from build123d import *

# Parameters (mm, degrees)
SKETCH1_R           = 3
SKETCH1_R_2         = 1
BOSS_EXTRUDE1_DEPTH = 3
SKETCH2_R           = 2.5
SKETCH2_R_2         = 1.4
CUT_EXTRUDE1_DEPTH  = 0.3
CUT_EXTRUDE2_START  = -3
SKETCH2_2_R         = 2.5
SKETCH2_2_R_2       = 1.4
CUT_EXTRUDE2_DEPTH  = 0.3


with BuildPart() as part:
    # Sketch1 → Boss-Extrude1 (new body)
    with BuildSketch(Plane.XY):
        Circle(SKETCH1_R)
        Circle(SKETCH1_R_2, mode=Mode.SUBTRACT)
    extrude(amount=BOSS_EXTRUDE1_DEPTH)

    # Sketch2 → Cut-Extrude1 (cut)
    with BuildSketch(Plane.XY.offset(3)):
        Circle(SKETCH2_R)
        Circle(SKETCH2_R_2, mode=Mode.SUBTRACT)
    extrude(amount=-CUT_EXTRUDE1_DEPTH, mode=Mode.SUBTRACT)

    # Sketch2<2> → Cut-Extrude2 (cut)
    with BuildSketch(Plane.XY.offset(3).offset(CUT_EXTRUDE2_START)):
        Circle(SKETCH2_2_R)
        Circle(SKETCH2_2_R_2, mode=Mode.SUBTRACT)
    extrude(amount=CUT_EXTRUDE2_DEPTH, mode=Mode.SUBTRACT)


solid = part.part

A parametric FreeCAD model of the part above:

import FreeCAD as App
import Part
import Sketcher

V = App.Vector
Q = App.Units.Quantity

doc = App.newDocument("Part")
body = doc.addObject("PartDesign::Body", "Body")

sketch1 = doc.addObject("Sketcher::SketchObject", "Sketch")
body.addObject(sketch1)
sketch1.AttachmentSupport = (doc.XY_Plane, [""])
sketch1.MapMode = "FlatFace"
sketch1.addGeometry([
    Part.Circle(V(0, 0, 0), V(0, 0, 1), 3),
    Part.Circle(V(0, 0, 0), V(0, 0, 1), 1),
], False)
sketch1.addConstraint([
    Sketcher.Constraint("Coincident", 0, 3, -1, 1),
    Sketcher.Constraint("Coincident", 1, 3, -1, 1),
    Sketcher.Constraint("Diameter", 0, Q("6 mm")),
    Sketcher.Constraint("Diameter", 1, Q("2 mm")),
])
pad1 = doc.addObject("PartDesign::Pad", "Pad")
body.addObject(pad1)
pad1.Profile = sketch1
pad1.Length = 3

sketch2 = doc.addObject("Sketcher::SketchObject", "Sketch001")
body.addObject(sketch2)
sketch2.AttachmentSupport = (doc.XY_Plane, [""])
sketch2.MapMode = "FlatFace"
sketch2.AttachmentOffset = App.Placement(V(0, 0, 3), App.Rotation())
sketch2.addGeometry([
    Part.Circle(V(0, 0, 0), V(0, 0, 1), 2.5),
    Part.Circle(V(0, 0, 0), V(0, 0, 1), 1.4),
], False)
sketch2.addConstraint([
    Sketcher.Constraint("Coincident", 0, 3, -1, 1),
    Sketcher.Constraint("Coincident", 1, 3, -1, 1),
    Sketcher.Constraint("Diameter", 0, Q("5 mm")),
    Sketcher.Constraint("Diameter", 1, Q("2.8 mm")),
])
pocket1 = doc.addObject("PartDesign::Pocket", "Pocket")
body.addObject(pocket1)
pocket1.Profile = sketch2
pocket1.Length = 0.3

sketch3 = doc.addObject("Sketcher::SketchObject", "Sketch002")
body.addObject(sketch3)
sketch3.AttachmentSupport = (doc.XY_Plane, [""])
sketch3.MapMode = "FlatFace"
sketch3.addGeometry([
    Part.Circle(V(0, 0, 0), V(0, 0, 1), 2.5),
    Part.Circle(V(0, 0, 0), V(0, 0, 1), 1.4),
], False)
sketch3.addConstraint([
    Sketcher.Constraint("Coincident", 0, 3, -1, 1),
    Sketcher.Constraint("Coincident", 1, 3, -1, 1),
    Sketcher.Constraint("Diameter", 0, Q("5 mm")),
    Sketcher.Constraint("Diameter", 1, Q("2.8 mm")),
])
pocket2 = doc.addObject("PartDesign::Pocket", "Pocket001")
body.addObject(pocket2)
pocket2.Profile = sketch3
pocket2.Length = 0.3
pocket2.Reversed = True

doc.recompute()
